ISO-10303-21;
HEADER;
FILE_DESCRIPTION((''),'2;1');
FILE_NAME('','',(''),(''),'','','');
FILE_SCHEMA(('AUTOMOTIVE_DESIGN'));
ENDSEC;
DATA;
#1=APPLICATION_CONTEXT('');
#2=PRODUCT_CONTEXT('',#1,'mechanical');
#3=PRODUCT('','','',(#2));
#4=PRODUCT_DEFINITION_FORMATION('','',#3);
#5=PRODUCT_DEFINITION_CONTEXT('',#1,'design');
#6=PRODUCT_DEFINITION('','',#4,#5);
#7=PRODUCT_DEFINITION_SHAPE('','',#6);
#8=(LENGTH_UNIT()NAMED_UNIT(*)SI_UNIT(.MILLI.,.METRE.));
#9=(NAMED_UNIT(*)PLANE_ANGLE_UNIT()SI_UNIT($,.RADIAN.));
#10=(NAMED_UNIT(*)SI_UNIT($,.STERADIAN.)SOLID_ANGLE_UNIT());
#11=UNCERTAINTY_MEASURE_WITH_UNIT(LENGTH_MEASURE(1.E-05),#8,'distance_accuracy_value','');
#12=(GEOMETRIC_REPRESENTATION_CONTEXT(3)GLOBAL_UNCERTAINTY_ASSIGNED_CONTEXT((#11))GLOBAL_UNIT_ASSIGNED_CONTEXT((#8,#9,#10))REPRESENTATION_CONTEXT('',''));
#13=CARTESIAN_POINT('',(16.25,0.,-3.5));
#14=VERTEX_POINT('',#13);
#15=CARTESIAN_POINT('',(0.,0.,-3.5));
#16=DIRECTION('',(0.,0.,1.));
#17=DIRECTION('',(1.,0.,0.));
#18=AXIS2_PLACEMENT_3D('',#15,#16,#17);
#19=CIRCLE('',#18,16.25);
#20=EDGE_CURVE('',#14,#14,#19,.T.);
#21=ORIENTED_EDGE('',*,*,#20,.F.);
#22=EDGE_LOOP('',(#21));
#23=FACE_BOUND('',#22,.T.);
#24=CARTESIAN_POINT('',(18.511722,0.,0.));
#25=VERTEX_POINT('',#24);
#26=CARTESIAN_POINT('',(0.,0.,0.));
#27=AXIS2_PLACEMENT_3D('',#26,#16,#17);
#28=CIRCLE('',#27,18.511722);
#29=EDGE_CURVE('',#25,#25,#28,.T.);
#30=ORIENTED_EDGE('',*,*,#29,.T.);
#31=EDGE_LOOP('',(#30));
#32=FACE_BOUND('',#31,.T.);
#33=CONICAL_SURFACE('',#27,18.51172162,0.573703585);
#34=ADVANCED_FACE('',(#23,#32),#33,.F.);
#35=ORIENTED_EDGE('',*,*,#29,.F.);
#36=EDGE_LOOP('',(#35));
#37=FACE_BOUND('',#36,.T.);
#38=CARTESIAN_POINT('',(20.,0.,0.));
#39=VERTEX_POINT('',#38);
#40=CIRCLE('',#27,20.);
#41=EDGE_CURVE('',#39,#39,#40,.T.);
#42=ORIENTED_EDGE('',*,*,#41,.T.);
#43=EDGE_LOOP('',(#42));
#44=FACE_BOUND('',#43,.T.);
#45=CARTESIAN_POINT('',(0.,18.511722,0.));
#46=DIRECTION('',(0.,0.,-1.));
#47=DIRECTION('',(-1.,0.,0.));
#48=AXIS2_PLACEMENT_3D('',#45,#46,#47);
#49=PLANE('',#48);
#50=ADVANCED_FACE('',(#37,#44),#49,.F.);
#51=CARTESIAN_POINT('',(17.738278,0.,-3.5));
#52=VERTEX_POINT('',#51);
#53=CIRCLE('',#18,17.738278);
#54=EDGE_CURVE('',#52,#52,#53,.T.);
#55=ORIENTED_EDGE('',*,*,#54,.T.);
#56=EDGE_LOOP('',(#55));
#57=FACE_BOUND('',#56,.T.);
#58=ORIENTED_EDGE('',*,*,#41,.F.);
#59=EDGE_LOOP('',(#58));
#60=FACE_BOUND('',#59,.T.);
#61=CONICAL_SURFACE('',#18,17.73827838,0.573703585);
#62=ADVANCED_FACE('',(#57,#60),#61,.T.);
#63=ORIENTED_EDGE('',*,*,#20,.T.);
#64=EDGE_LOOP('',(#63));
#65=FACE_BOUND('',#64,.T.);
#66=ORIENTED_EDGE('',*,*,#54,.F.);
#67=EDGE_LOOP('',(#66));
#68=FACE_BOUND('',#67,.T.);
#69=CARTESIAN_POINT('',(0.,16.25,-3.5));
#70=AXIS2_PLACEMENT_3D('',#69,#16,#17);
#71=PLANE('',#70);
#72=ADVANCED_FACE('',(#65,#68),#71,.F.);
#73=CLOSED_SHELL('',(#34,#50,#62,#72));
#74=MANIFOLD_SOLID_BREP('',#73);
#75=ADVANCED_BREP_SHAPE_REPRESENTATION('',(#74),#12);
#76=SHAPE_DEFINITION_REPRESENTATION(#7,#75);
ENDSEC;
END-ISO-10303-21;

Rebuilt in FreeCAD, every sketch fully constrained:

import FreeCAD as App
import Part
import Sketcher
from FreeCAD import Vector
Q = App.Units.Quantity


def add_polygon(sketch, points):
    """Adds a closed chain of lines whose ends are joined by coincident constraints."""
    first, n = sketch.GeometryCount, len(points)
    for a, b in zip(points, points[1:] + points[:1]):
        sketch.addGeometry(Part.LineSegment(App.Vector(*a, 0), App.Vector(*b, 0)), False)
    for i in range(n):
        sketch.addConstraint(Sketcher.Constraint("Coincident", first + i, 2, first + (i + 1) % n, 1))

doc = App.newDocument("Part")
params = doc.addObject("Spreadsheet::Sheet", "Params")
for row, (alias, value) in enumerate([
    ("revolution_angle", "360 deg"),
], start=1):
    params.set(f"A{row}", alias)
    params.set(f"B{row}", "=" + value)
    params.setAlias(f"B{row}", alias)

body = doc.addObject("PartDesign::Body", "Body")

# Sketch on YZ plane
sketch1 = doc.addObject("Sketcher::SketchObject", "Sketch")
body.addObject(sketch1)
sketch1.AttachmentSupport = (doc.YZ_Plane, [""])
sketch1.MapMode = "FlatFace"
add_polygon(sketch1, [(18.511722, 0), (16.25, -3.5), (17.738278, -3.5), (20, 0)])  # lines 0-3
sketch1.addConstraint([
    Sketcher.Constraint("Horizontal", 1),
    Sketcher.Constraint("Horizontal", 3),
    Sketcher.Constraint("PointOnObject", 2, 2, -1),
    Sketcher.Constraint("Parallel", 0, 2),
    Sketcher.Constraint("DistanceX", -1, 1, 2, 2, Q("20 mm")),
    Sketcher.Constraint("DistanceY", 0, 2, -1, 1, Q("3.5 mm")),
    Sketcher.Constraint("DistanceX", -1, 1, 0, 2, Q("16.25 mm")),
    Sketcher.Constraint("DistanceX", 1, 1, 1, 2, Q("1.488278 mm")),
])
revolution = doc.addObject("PartDesign::Revolution", "Revolution")
body.addObject(revolution)
revolution.Profile = sketch1
revolution.ReferenceAxis = (sketch1, ["V_Axis"])
revolution.setExpression("Angle", "Params.revolution_angle")

doc.recompute()
